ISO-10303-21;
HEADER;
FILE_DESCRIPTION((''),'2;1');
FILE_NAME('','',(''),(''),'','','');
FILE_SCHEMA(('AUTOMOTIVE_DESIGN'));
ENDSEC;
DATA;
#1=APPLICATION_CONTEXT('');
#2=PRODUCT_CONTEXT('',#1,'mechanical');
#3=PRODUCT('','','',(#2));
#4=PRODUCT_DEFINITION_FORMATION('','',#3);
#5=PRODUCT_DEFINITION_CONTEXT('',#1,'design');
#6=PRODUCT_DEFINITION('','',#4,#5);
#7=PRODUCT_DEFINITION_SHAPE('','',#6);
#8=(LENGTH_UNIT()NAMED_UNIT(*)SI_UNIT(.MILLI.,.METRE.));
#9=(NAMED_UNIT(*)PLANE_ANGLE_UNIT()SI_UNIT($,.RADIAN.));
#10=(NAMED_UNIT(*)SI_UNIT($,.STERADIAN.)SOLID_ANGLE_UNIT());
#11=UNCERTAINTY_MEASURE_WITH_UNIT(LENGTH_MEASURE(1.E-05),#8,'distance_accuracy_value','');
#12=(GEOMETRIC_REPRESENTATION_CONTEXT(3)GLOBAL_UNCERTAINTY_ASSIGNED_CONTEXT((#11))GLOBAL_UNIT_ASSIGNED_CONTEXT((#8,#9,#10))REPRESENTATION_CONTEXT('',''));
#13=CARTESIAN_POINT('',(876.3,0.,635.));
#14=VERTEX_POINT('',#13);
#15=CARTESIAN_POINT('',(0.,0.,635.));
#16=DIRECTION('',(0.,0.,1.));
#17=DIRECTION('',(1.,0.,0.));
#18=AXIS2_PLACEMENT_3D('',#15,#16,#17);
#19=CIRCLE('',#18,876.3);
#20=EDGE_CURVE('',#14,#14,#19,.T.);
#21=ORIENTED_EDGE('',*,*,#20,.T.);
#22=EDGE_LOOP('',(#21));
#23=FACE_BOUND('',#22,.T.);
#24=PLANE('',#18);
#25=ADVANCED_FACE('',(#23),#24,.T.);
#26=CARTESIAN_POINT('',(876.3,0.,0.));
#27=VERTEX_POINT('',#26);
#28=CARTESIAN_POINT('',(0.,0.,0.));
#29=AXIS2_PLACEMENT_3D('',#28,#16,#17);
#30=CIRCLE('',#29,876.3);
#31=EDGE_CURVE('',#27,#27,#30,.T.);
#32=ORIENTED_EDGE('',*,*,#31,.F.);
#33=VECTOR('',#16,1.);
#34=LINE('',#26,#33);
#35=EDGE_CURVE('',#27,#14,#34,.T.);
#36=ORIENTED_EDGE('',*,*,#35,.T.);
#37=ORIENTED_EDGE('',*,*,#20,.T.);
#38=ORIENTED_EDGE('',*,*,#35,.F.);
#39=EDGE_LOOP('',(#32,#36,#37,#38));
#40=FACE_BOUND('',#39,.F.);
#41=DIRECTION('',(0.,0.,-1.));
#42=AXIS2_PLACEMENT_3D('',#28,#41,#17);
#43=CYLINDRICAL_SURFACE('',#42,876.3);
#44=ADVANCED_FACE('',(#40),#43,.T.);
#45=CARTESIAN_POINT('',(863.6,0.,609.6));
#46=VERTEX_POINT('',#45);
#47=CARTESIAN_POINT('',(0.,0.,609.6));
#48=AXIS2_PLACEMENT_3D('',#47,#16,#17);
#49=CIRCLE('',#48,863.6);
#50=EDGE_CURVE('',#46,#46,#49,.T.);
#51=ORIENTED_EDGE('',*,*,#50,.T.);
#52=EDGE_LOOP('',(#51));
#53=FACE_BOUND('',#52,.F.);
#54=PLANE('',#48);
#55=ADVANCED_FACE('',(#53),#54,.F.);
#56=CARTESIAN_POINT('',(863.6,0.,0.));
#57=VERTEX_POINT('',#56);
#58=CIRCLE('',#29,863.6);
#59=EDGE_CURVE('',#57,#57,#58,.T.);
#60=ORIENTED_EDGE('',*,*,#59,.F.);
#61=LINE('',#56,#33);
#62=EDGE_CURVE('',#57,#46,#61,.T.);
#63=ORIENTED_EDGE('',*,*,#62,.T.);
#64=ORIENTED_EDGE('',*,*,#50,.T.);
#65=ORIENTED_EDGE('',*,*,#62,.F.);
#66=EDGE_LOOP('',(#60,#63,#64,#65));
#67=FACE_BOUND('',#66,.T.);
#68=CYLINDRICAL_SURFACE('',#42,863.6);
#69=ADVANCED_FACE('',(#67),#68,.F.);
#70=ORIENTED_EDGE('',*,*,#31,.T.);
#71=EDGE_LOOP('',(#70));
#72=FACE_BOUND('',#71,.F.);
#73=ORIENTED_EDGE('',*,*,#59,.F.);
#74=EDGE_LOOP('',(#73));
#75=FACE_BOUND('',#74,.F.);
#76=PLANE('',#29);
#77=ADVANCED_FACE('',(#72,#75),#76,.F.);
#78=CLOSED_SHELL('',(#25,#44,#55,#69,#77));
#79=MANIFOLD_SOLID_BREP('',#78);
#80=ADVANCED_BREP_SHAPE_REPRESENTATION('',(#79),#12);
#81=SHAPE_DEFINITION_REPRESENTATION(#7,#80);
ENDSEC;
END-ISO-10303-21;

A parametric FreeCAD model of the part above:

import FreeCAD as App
import Part
import Sketcher

V = App.Vector
Q = App.Units.Quantity

doc = App.newDocument("Part")
body = doc.addObject("PartDesign::Body", "Body")

# Sketch on XY plane
sketch1 = body.newObject("Sketcher::SketchObject", "Sketch")
sketch1.AttachmentSupport = (doc.getObject("XY_Plane"), [""])
sketch1.MapMode = "FlatFace"
sketch1.addGeometry(Part.Circle(V(0, 0, 0), V(0, 0, 1), 876.3), False)
sketch1.addConstraint([
    Sketcher.Constraint("Coincident", 0, 3, -1, 1),
    Sketcher.Constraint("Diameter", 0, Q("69 in")),
])
pad1 = body.newObject("PartDesign::Pad", "Pad")
pad1.Profile = sketch1
pad1.Length = Q("25 in")

# Sketch on XY plane
sketch2 = body.newObject("Sketcher::SketchObject", "Sketch001")
sketch2.AttachmentSupport = (doc.getObject("XY_Plane"), [""])
sketch2.MapMode = "FlatFace"
sketch2.addGeometry(Part.Circle(V(0, 0, 0), V(0, 0, 1), 863.6), False)
sketch2.addConstraint([
    Sketcher.Constraint("Coincident", 0, 3, -1, 1),
    Sketcher.Constraint("Diameter", 0, Q("68 in")),
])
pocket1 = body.newObject("PartDesign::Pocket", "Pocket")
pocket1.Profile = sketch2
pocket1.Length = Q("24 in")
pocket1.Reversed = True

doc.recompute()
